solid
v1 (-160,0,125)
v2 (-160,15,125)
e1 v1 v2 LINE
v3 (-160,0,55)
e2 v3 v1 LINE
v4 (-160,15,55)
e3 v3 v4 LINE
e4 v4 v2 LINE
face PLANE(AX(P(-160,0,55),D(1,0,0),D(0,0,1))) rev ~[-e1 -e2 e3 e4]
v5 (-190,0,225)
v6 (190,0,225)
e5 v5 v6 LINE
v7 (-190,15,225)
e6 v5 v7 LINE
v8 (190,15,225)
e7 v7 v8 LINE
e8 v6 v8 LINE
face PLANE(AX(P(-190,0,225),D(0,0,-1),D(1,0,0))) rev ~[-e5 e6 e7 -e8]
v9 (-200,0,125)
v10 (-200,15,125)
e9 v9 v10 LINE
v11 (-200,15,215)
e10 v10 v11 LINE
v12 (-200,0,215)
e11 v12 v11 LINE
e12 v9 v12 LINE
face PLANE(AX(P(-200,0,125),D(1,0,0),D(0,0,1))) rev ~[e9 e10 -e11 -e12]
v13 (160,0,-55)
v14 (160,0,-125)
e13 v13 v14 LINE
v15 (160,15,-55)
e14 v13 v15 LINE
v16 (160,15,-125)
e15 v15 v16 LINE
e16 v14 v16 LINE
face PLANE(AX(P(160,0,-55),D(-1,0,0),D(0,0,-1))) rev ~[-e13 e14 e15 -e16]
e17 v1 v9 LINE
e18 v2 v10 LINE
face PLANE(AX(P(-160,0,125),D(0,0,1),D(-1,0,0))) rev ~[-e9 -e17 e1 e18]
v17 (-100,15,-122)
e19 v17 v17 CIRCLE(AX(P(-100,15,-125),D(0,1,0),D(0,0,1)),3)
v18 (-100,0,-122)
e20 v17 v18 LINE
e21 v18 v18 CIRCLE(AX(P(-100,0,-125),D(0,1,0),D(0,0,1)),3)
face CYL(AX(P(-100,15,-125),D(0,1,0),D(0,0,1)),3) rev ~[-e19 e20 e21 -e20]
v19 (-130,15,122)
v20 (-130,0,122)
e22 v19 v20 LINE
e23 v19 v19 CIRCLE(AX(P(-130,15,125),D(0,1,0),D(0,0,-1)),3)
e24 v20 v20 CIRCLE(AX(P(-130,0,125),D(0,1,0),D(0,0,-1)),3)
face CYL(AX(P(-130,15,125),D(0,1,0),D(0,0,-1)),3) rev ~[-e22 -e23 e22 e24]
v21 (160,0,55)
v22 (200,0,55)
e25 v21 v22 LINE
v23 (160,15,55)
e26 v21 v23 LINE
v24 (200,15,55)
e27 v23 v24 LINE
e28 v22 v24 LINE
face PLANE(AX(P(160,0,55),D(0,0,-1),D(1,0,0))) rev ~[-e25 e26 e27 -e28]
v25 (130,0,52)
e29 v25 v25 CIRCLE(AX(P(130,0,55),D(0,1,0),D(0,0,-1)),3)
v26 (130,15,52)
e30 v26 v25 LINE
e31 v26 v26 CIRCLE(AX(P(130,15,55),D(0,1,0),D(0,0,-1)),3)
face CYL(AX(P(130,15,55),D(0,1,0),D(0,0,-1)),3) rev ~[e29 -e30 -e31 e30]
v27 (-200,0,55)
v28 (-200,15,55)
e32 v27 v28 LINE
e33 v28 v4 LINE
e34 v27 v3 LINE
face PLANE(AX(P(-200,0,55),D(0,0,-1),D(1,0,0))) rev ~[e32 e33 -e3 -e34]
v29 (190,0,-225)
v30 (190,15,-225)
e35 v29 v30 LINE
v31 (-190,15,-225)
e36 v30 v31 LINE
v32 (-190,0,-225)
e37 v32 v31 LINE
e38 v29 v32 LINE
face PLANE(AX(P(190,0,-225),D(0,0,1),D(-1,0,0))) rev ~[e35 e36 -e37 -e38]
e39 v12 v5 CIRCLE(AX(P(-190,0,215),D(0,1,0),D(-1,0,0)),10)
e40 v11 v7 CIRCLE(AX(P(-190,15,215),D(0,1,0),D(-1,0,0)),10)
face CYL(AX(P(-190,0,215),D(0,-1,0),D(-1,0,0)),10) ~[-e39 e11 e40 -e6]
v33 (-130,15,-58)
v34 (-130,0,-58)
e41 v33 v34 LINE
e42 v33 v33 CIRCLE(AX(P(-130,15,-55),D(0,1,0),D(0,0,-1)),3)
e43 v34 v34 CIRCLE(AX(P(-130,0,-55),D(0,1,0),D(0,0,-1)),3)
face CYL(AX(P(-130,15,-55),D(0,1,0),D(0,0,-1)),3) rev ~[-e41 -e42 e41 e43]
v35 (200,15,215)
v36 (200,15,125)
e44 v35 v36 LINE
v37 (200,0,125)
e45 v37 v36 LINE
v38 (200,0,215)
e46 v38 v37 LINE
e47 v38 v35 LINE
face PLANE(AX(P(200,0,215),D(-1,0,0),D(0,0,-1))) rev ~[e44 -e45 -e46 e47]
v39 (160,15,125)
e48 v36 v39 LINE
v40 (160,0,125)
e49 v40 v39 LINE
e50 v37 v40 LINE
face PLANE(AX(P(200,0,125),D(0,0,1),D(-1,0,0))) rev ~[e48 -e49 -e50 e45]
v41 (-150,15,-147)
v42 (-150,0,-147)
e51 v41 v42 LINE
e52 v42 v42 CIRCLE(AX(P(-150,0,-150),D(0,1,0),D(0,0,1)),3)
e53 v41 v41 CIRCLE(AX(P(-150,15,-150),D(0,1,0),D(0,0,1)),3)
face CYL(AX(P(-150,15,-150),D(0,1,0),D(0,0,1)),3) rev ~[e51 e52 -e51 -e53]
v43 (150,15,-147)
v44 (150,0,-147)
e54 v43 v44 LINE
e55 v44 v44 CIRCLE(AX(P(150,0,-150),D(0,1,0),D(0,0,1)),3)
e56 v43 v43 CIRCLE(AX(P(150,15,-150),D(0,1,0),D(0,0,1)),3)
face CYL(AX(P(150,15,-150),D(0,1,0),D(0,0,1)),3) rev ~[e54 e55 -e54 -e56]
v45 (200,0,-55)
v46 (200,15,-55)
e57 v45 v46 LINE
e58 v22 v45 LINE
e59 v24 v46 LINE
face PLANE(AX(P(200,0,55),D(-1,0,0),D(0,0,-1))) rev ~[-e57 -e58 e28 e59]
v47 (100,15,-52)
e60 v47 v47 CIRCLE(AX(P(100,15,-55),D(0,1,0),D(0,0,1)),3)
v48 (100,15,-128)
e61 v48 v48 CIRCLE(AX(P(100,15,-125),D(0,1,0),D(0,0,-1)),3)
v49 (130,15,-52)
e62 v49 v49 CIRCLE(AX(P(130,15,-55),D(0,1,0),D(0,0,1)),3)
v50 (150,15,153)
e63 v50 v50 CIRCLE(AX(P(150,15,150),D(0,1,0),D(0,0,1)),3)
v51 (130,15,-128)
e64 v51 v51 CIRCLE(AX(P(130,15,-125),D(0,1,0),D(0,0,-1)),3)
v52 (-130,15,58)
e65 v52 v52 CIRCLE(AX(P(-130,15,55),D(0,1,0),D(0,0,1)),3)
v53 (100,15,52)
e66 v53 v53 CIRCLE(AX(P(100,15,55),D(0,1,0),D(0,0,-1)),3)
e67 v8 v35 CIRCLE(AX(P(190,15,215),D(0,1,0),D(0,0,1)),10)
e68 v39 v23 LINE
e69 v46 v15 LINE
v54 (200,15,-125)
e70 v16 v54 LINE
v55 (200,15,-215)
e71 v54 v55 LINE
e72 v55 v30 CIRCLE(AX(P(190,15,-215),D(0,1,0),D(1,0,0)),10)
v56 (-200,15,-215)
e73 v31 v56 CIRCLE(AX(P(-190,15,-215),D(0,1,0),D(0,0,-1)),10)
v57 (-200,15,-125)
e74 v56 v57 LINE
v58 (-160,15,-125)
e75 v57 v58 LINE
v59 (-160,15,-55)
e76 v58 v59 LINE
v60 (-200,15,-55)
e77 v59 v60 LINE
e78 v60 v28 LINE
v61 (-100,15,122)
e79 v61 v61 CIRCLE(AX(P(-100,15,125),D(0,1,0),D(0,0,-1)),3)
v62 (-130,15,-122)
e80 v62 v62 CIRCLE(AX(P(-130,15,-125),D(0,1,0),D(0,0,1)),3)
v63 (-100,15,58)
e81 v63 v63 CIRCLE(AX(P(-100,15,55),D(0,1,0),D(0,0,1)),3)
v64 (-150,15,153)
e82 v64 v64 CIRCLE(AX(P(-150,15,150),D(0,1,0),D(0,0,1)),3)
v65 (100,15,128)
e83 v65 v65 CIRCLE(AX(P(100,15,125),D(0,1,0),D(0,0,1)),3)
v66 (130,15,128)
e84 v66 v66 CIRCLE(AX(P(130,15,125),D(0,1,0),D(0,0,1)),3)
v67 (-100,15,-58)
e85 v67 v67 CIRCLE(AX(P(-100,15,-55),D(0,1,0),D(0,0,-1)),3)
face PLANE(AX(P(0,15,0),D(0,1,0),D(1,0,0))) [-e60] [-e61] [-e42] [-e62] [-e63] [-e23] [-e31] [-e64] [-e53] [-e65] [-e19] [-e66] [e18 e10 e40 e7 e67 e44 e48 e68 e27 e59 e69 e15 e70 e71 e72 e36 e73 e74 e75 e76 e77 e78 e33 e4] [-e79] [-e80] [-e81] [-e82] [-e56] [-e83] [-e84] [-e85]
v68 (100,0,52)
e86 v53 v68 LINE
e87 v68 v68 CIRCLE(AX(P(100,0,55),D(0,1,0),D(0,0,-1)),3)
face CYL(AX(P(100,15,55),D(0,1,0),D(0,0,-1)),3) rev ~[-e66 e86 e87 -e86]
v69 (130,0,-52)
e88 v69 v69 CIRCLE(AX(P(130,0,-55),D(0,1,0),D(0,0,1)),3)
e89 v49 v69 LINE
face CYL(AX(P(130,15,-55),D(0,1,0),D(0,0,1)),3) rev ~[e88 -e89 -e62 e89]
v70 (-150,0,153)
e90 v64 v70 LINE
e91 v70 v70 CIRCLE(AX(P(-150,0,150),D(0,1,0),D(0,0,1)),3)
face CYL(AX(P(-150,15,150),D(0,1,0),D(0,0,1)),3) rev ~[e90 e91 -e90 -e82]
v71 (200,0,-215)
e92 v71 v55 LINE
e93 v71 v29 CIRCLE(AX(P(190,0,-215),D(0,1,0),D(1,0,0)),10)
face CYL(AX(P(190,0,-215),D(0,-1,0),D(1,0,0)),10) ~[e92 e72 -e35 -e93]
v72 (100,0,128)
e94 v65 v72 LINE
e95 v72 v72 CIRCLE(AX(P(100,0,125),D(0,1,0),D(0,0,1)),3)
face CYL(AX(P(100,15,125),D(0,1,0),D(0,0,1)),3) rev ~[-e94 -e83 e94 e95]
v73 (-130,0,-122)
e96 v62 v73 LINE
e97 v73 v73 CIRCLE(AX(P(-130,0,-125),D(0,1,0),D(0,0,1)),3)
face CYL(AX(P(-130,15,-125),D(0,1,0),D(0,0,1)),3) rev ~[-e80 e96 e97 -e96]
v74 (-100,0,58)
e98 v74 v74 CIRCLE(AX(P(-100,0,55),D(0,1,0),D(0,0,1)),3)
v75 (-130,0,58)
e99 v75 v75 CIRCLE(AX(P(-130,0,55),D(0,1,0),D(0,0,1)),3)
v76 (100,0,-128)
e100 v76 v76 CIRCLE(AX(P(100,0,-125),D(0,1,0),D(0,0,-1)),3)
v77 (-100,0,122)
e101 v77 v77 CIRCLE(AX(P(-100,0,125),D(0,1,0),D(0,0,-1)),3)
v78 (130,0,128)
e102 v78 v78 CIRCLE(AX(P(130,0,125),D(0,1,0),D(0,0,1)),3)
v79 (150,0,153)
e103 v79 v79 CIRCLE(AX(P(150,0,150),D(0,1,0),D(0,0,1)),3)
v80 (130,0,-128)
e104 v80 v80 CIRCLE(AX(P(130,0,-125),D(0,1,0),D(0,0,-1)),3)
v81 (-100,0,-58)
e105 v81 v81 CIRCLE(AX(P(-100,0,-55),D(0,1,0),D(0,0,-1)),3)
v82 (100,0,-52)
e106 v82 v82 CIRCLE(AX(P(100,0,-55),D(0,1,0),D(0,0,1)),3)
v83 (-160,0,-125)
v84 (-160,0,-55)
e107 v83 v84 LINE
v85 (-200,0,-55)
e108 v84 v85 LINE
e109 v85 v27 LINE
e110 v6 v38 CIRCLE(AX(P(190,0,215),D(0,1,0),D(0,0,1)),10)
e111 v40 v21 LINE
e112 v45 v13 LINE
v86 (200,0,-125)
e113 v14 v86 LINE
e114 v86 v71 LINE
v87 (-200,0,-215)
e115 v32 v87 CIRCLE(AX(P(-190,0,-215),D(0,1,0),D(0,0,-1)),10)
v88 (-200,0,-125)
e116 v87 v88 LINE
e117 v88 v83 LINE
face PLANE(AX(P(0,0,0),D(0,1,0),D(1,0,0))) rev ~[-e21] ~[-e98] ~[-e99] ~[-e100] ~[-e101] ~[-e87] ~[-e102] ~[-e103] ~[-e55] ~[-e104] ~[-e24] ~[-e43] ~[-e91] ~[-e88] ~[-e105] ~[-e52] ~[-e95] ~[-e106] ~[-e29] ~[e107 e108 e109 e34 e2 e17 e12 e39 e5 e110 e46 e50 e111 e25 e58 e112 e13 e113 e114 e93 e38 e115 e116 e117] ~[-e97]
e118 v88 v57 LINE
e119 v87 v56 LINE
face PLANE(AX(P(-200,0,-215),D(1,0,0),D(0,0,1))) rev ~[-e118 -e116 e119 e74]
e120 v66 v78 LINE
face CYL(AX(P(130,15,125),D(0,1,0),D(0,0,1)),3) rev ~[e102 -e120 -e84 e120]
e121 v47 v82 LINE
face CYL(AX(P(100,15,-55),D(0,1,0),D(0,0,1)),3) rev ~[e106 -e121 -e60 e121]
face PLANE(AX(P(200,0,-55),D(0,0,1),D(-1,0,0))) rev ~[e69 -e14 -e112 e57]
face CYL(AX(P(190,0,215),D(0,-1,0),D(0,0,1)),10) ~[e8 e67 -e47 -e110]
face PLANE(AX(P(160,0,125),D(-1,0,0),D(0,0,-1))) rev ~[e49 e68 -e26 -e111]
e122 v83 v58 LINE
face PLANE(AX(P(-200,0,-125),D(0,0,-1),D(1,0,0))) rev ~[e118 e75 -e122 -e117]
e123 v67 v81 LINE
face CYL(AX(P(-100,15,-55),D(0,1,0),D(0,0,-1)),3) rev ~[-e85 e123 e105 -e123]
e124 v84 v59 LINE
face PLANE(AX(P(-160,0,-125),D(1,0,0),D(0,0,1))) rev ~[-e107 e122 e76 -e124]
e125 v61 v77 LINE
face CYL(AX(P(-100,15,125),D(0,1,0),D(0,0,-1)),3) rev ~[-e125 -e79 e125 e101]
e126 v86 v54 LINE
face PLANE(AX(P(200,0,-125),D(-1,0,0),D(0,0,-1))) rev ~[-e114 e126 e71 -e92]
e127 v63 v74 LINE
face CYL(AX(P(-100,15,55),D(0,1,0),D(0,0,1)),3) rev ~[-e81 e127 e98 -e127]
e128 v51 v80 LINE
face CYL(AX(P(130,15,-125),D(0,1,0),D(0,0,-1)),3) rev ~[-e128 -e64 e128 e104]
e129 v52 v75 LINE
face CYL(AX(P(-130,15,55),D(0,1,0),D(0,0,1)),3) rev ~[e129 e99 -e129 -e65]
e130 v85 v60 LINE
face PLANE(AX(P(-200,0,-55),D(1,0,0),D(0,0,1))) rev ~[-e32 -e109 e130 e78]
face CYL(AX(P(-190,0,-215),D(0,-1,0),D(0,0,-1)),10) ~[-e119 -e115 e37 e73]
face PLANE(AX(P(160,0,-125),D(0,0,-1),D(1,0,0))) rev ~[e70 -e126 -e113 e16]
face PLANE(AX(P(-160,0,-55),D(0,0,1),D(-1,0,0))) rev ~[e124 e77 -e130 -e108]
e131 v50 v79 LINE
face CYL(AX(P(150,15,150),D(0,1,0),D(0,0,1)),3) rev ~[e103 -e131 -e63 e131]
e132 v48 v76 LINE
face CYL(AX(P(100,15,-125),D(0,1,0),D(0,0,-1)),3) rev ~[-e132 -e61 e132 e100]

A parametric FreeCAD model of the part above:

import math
import FreeCAD as App
import Part
import Sketcher

doc = App.newDocument("Part")
body = doc.addObject("PartDesign::Body", "Body")

# Sketch on XZ plane
sketch1 = body.newObject("Sketcher::SketchObject", "Sketch")
sketch1.AttachmentSupport = (doc.getObject("XZ_Plane"), [""])
sketch1.MapMode = "FlatFace"
sketch1.addGeometry([
    Part.LineSegment(App.Vector(-200, -55, 0), App.Vector(-200, 55, 0)),  # 0
    Part.LineSegment(App.Vector(-200, 55, 0), App.Vector(-160, 55, 0)),  # 1
    Part.LineSegment(App.Vector(-160, 55, 0), App.Vector(-160, 125, 0)),  # 2
    Part.LineSegment(App.Vector(-160, 125, 0), App.Vector(-200, 125, 0)),  # 3
    Part.LineSegment(App.Vector(-200, 125, 0), App.Vector(-200, 215, 0)),  # 4
    Part.ArcOfCircle(Part.Circle(App.Vector(-190, 215, 0), App.Vector(0, 0, 1), 10), math.radians(90), math.radians(180)),  # 5
    Part.LineSegment(App.Vector(-190, 225, 0), App.Vector(190, 225, 0)),  # 6
    Part.ArcOfCircle(Part.Circle(App.Vector(190, 215, 0), App.Vector(0, 0, 1), 10), math.radians(0), math.radians(90)),  # 7
    Part.LineSegment(App.Vector(200, 215, 0), App.Vector(200, 125, 0)),  # 8
    Part.LineSegment(App.Vector(200, 125, 0), App.Vector(160, 125, 0)),  # 9
    Part.LineSegment(App.Vector(160, 125, 0), App.Vector(160, 55, 0)),  # 10
    Part.LineSegment(App.Vector(160, 55, 0), App.Vector(200, 55, 0)),  # 11
    Part.LineSegment(App.Vector(200, 55, 0), App.Vector(200, -55, 0)),  # 12
    Part.LineSegment(App.Vector(200, -55, 0), App.Vector(160, -55, 0)),  # 13
    Part.LineSegment(App.Vector(160, -55, 0), App.Vector(160, -125, 0)),  # 14
    Part.LineSegment(App.Vector(160, -125, 0), App.Vector(200, -125, 0)),  # 15
    Part.LineSegment(App.Vector(200, -125, 0), App.Vector(200, -215, 0)),  # 16
    Part.ArcOfCircle(Part.Circle(App.Vector(190, -215, 0), App.Vector(0, 0, 1), 10), math.radians(-90), math.radians(0)),  # 17
    Part.LineSegment(App.Vector(190, -225, 0), App.Vector(-190, -225, 0)),  # 18
    Part.ArcOfCircle(Part.Circle(App.Vector(-190, -215, 0), App.Vector(0, 0, 1), 10), math.radians(180), math.radians(270)),  # 19
    Part.LineSegment(App.Vector(-200, -215, 0), App.Vector(-200, -125, 0)),  # 20
    Part.LineSegment(App.Vector(-200, -125, 0), App.Vector(-160, -125, 0)),  # 21
    Part.LineSegment(App.Vector(-160, -125, 0), App.Vector(-160, -55, 0)),  # 22
    Part.LineSegment(App.Vector(-160, -55, 0), App.Vector(-200, -55, 0)),  # 23
], False)
sketch1.addConstraint([
    Sketcher.Constraint("Coincident", 0, 2, 1, 1),
    Sketcher.Constraint("Coincident", 1, 2, 2, 1),
    Sketcher.Constraint("Coincident", 2, 2, 3, 1),
    Sketcher.Constraint("Coincident", 3, 2, 4, 1),
    Sketcher.Constraint("Tangent", 4, 2, 5, 2),
    Sketcher.Constraint("Tangent", 5, 1, 6, 1),
    Sketcher.Constraint("Tangent", 6, 2, 7, 2),
    Sketcher.Constraint("Tangent", 7, 1, 8, 1),
    Sketcher.Constraint("Coincident", 8, 2, 9, 1),
    Sketcher.Constraint("Coincident", 9, 2, 10, 1),
    Sketcher.Constraint("Coincident", 10, 2, 11, 1),
    Sketcher.Constraint("Coincident", 11, 2, 12, 1),
    Sketcher.Constraint("Coincident", 12, 2, 13, 1),
    Sketcher.Constraint("Coincident", 13, 2, 14, 1),
    Sketcher.Constraint("Coincident", 14, 2, 15, 1),
    Sketcher.Constraint("Coincident", 15, 2, 16, 1),
    Sketcher.Constraint("Tangent", 16, 2, 17, 2),
    Sketcher.Constraint("Tangent", 17, 1, 18, 1),
    Sketcher.Constraint("Tangent", 18, 2, 19, 2),
    Sketcher.Constraint("Tangent", 19, 1, 20, 1),
    Sketcher.Constraint("Coincident", 20, 2, 21, 1),
    Sketcher.Constraint("Coincident", 21, 2, 22, 1),
    Sketcher.Constraint("Coincident", 22, 2, 23, 1),
    Sketcher.Constraint("Coincident", 23, 2, 0, 1),
    Sketcher.Constraint("Vertical", 0),
    Sketcher.Constraint("Horizontal", 1),
    Sketcher.Constraint("Vertical", 2),
    Sketcher.Constraint("Horizontal", 3),
    Sketcher.Constraint("Vertical", 4),
    Sketcher.Constraint("Horizontal", 6),
    Sketcher.Constraint("Vertical", 8),
    Sketcher.Constraint("Horizontal", 9),
    Sketcher.Constraint("Vertical", 10),
    Sketcher.Constraint("Horizontal", 11),
    Sketcher.Constraint("Vertical", 12),
    Sketcher.Constraint("Horizontal", 13),
    Sketcher.Constraint("Vertical", 14),
    Sketcher.Constraint("Horizontal", 15),
    Sketcher.Constraint("Vertical", 16),
    Sketcher.Constraint("Horizontal", 18),
    Sketcher.Constraint("Vertical", 20),
    Sketcher.Constraint("Horizontal", 21),
    Sketcher.Constraint("Vertical", 22),
    Sketcher.Constraint("Horizontal", 23),
    Sketcher.Constraint("Equal", 5, 7),
    Sketcher.Constraint("Equal", 7, 17),
    Sketcher.Constraint("Equal", 17, 19),
    Sketcher.Constraint("Symmetric", 5, 3, 17, 3, -1, 1),
    Sketcher.Constraint("Symmetric", 0, 2, 12, 2, -1, 1),
    Sketcher.Constraint("Symmetric", 2, 2, 14, 2, -1, 1),
    Sketcher.Constraint("Symmetric", 8, 2, 20, 2, -1, 1),
    Sketcher.Constraint("Symmetric", 10, 2, 22, 2, -1, 1),
    Sketcher.Constraint("Symmetric", 3, 2, 8, 2, -2),
    Sketcher.Constraint("Symmetric", 1, 2, 10, 2, -2),
    Sketcher.Constraint("Vertical", 0, 2, 3, 2),
    Sketcher.Constraint("Radius", 5, 10.0),
    Sketcher.Constraint("DistanceX", 1, 1, 1, 2, 40.0),
    Sketcher.Constraint("DistanceX", 6, 1, 6, 2, 380.0),
    Sketcher.Constraint("DistanceY", 0, 1, 0, 2, 110.0),
    Sketcher.Constraint("DistanceY", 2, 1, 2, 2, 70.0),
    Sketcher.Constraint("DistanceY", 4, 1, 4, 2, 90.0),
])
pad1 = body.newObject("PartDesign::Pad", "Pad")
pad1.Profile = sketch1
pad1.Length = 15
pad1.Reversed = True

# Sketch on XZ plane
sketch2 = body.newObject("Sketcher::SketchObject", "Sketch001")
sketch2.AttachmentSupport = (doc.getObject("XZ_Plane"), [""])
sketch2.MapMode = "FlatFace"
sketch2.AttachmentOffset = App.Placement(App.Vector(0, 0, -15), App.Rotation())
sketch2.addGeometry([
    Part.Circle(App.Vector(-130, -125, 0), App.Vector(0, 0, 1), 3),  # 0
    Part.Circle(App.Vector(-100, -125, 0), App.Vector(0, 0, 1), 3),  # 1
    Part.Circle(App.Vector(-100, -55, 0), App.Vector(0, 0, 1), 3),  # 2
    Part.Circle(App.Vector(-130, -55, 0), App.Vector(0, 0, 1), 3),  # 3
    Part.Circle(App.Vector(100, -55, 0), App.Vector(0, 0, 1), 3),  # 4
    Part.Circle(App.Vector(130, -55, 0), App.Vector(0, 0, 1), 3),  # 5
    Part.Circle(App.Vector(100, -125, 0), App.Vector(0, 0, 1), 3),  # 6
    Part.Circle(App.Vector(130, -125, 0), App.Vector(0, 0, 1), 3),  # 7
    Part.Circle(App.Vector(100, 125, 0), App.Vector(0, 0, 1), 3),  # 8
    Part.Circle(App.Vector(130, 125, 0), App.Vector(0, 0, 1), 3),  # 9
    Part.Circle(App.Vector(130, 55, 0), App.Vector(0, 0, 1), 3),  # 10
    Part.Circle(App.Vector(100, 55, 0), App.Vector(0, 0, 1), 3),  # 11
    Part.Circle(App.Vector(-100, 55, 0), App.Vector(0, 0, 1), 3),  # 12
    Part.Circle(App.Vector(-130, 55, 0), App.Vector(0, 0, 1), 3),  # 13
    Part.Circle(App.Vector(-100, 125, 0), App.Vector(0, 0, 1), 3),  # 14
    Part.Circle(App.Vector(-130, 125, 0), App.Vector(0, 0, 1), 3),  # 15
    Part.Circle(App.Vector(-150, 150, 0), App.Vector(0, 0, 1), 3),  # 16
    Part.Circle(App.Vector(150, 150, 0), App.Vector(0, 0, 1), 3),  # 17
    Part.Circle(App.Vector(150, -150, 0), App.Vector(0, 0, 1), 3),  # 18
    Part.Circle(App.Vector(-150, -150, 0), App.Vector(0, 0, 1), 3),  # 19
], False)
sketch2.addConstraint([
    Sketcher.Constraint("Equal", 0, 1),
    Sketcher.Constraint("Equal", 1, 2),
    Sketcher.Constraint("Equal", 2, 3),
    Sketcher.Constraint("Equal", 3, 4),
    Sketcher.Constraint("Equal", 4, 5),
    Sketcher.Constraint("Equal", 5, 6),
    Sketcher.Constraint("Equal", 6, 7),
    Sketcher.Constraint("Equal", 7, 8),
    Sketcher.Constraint("Equal", 8, 9),
    Sketcher.Constraint("Equal", 9, 10),
    Sketcher.Constraint("Equal", 10, 11),
    Sketcher.Constraint("Equal", 11, 12),
    Sketcher.Constraint("Equal", 12, 13),
    Sketcher.Constraint("Equal", 13, 14),
    Sketcher.Constraint("Equal", 14, 15),
    Sketcher.Constraint("Equal", 15, 16),
    Sketcher.Constraint("Equal", 16, 17),
    Sketcher.Constraint("Equal", 17, 18),
    Sketcher.Constraint("Equal", 18, 19),
    Sketcher.Constraint("Symmetric", 1, 3, 8, 3, -1, 1),
    Sketcher.Constraint("Symmetric", 0, 3, 9, 3, -1, 1),
    Sketcher.Constraint("Symmetric", 3, 3, 10, 3, -1, 1),
    Sketcher.Constraint("Symmetric", 2, 3, 11, 3, -1, 1),
    Sketcher.Constraint("Symmetric", 4, 3, 12, 3, -1, 1),
    Sketcher.Constraint("Symmetric", 5, 3, 13, 3, -1, 1),
    Sketcher.Constraint("Symmetric", 6, 3, 14, 3, -1, 1),
    Sketcher.Constraint("Symmetric", 7, 3, 15, 3, -1, 1),
    Sketcher.Constraint("Symmetric", 16, 3, 18, 3, -1, 1),
    Sketcher.Constraint("Symmetric", 17, 3, 19, 3, -1, 1),
    Sketcher.Constraint("Symmetric", 2, 3, 4, 3, -2),
    Sketcher.Constraint("Symmetric", 3, 3, 5, 3, -2),
    Sketcher.Constraint("Symmetric", 1, 3, 6, 3, -2),
    Sketcher.Constraint("Symmetric", 0, 3, 7, 3, -2),
    Sketcher.Constraint("Symmetric", 16, 3, 17, 3, -2),
    Sketcher.Constraint("Horizontal", 0, 3, 1, 3),
    Sketcher.Constraint("Horizontal", 2, 3, 3, 3),
    Sketcher.Constraint("Vertical", 1, 3, 2, 3),
    Sketcher.Constraint("Vertical", 0, 3, 3, 3),
    Sketcher.Constraint("Diameter", 0, 6.0),
    Sketcher.Constraint("DistanceX", 0, 3, -1, 1, 130.0),
    Sketcher.Constraint("DistanceY", 0, 3, -1, 1, 125.0),
    Sketcher.Constraint("DistanceX", 1, 3, -1, 1, 100.0),
    Sketcher.Constraint("DistanceY", 2, 3, -1, 1, 55.0),
    Sketcher.Constraint("DistanceX", 16, 3, -1, 1, 150.0),
    Sketcher.Constraint("DistanceY", -1, 1, 16, 3, 150.0),
])
pocket1 = body.newObject("PartDesign::Pocket", "Pocket")
pocket1.Profile = sketch2
pocket1.Length = 15
pocket1.Reversed = True

doc.recompute()
